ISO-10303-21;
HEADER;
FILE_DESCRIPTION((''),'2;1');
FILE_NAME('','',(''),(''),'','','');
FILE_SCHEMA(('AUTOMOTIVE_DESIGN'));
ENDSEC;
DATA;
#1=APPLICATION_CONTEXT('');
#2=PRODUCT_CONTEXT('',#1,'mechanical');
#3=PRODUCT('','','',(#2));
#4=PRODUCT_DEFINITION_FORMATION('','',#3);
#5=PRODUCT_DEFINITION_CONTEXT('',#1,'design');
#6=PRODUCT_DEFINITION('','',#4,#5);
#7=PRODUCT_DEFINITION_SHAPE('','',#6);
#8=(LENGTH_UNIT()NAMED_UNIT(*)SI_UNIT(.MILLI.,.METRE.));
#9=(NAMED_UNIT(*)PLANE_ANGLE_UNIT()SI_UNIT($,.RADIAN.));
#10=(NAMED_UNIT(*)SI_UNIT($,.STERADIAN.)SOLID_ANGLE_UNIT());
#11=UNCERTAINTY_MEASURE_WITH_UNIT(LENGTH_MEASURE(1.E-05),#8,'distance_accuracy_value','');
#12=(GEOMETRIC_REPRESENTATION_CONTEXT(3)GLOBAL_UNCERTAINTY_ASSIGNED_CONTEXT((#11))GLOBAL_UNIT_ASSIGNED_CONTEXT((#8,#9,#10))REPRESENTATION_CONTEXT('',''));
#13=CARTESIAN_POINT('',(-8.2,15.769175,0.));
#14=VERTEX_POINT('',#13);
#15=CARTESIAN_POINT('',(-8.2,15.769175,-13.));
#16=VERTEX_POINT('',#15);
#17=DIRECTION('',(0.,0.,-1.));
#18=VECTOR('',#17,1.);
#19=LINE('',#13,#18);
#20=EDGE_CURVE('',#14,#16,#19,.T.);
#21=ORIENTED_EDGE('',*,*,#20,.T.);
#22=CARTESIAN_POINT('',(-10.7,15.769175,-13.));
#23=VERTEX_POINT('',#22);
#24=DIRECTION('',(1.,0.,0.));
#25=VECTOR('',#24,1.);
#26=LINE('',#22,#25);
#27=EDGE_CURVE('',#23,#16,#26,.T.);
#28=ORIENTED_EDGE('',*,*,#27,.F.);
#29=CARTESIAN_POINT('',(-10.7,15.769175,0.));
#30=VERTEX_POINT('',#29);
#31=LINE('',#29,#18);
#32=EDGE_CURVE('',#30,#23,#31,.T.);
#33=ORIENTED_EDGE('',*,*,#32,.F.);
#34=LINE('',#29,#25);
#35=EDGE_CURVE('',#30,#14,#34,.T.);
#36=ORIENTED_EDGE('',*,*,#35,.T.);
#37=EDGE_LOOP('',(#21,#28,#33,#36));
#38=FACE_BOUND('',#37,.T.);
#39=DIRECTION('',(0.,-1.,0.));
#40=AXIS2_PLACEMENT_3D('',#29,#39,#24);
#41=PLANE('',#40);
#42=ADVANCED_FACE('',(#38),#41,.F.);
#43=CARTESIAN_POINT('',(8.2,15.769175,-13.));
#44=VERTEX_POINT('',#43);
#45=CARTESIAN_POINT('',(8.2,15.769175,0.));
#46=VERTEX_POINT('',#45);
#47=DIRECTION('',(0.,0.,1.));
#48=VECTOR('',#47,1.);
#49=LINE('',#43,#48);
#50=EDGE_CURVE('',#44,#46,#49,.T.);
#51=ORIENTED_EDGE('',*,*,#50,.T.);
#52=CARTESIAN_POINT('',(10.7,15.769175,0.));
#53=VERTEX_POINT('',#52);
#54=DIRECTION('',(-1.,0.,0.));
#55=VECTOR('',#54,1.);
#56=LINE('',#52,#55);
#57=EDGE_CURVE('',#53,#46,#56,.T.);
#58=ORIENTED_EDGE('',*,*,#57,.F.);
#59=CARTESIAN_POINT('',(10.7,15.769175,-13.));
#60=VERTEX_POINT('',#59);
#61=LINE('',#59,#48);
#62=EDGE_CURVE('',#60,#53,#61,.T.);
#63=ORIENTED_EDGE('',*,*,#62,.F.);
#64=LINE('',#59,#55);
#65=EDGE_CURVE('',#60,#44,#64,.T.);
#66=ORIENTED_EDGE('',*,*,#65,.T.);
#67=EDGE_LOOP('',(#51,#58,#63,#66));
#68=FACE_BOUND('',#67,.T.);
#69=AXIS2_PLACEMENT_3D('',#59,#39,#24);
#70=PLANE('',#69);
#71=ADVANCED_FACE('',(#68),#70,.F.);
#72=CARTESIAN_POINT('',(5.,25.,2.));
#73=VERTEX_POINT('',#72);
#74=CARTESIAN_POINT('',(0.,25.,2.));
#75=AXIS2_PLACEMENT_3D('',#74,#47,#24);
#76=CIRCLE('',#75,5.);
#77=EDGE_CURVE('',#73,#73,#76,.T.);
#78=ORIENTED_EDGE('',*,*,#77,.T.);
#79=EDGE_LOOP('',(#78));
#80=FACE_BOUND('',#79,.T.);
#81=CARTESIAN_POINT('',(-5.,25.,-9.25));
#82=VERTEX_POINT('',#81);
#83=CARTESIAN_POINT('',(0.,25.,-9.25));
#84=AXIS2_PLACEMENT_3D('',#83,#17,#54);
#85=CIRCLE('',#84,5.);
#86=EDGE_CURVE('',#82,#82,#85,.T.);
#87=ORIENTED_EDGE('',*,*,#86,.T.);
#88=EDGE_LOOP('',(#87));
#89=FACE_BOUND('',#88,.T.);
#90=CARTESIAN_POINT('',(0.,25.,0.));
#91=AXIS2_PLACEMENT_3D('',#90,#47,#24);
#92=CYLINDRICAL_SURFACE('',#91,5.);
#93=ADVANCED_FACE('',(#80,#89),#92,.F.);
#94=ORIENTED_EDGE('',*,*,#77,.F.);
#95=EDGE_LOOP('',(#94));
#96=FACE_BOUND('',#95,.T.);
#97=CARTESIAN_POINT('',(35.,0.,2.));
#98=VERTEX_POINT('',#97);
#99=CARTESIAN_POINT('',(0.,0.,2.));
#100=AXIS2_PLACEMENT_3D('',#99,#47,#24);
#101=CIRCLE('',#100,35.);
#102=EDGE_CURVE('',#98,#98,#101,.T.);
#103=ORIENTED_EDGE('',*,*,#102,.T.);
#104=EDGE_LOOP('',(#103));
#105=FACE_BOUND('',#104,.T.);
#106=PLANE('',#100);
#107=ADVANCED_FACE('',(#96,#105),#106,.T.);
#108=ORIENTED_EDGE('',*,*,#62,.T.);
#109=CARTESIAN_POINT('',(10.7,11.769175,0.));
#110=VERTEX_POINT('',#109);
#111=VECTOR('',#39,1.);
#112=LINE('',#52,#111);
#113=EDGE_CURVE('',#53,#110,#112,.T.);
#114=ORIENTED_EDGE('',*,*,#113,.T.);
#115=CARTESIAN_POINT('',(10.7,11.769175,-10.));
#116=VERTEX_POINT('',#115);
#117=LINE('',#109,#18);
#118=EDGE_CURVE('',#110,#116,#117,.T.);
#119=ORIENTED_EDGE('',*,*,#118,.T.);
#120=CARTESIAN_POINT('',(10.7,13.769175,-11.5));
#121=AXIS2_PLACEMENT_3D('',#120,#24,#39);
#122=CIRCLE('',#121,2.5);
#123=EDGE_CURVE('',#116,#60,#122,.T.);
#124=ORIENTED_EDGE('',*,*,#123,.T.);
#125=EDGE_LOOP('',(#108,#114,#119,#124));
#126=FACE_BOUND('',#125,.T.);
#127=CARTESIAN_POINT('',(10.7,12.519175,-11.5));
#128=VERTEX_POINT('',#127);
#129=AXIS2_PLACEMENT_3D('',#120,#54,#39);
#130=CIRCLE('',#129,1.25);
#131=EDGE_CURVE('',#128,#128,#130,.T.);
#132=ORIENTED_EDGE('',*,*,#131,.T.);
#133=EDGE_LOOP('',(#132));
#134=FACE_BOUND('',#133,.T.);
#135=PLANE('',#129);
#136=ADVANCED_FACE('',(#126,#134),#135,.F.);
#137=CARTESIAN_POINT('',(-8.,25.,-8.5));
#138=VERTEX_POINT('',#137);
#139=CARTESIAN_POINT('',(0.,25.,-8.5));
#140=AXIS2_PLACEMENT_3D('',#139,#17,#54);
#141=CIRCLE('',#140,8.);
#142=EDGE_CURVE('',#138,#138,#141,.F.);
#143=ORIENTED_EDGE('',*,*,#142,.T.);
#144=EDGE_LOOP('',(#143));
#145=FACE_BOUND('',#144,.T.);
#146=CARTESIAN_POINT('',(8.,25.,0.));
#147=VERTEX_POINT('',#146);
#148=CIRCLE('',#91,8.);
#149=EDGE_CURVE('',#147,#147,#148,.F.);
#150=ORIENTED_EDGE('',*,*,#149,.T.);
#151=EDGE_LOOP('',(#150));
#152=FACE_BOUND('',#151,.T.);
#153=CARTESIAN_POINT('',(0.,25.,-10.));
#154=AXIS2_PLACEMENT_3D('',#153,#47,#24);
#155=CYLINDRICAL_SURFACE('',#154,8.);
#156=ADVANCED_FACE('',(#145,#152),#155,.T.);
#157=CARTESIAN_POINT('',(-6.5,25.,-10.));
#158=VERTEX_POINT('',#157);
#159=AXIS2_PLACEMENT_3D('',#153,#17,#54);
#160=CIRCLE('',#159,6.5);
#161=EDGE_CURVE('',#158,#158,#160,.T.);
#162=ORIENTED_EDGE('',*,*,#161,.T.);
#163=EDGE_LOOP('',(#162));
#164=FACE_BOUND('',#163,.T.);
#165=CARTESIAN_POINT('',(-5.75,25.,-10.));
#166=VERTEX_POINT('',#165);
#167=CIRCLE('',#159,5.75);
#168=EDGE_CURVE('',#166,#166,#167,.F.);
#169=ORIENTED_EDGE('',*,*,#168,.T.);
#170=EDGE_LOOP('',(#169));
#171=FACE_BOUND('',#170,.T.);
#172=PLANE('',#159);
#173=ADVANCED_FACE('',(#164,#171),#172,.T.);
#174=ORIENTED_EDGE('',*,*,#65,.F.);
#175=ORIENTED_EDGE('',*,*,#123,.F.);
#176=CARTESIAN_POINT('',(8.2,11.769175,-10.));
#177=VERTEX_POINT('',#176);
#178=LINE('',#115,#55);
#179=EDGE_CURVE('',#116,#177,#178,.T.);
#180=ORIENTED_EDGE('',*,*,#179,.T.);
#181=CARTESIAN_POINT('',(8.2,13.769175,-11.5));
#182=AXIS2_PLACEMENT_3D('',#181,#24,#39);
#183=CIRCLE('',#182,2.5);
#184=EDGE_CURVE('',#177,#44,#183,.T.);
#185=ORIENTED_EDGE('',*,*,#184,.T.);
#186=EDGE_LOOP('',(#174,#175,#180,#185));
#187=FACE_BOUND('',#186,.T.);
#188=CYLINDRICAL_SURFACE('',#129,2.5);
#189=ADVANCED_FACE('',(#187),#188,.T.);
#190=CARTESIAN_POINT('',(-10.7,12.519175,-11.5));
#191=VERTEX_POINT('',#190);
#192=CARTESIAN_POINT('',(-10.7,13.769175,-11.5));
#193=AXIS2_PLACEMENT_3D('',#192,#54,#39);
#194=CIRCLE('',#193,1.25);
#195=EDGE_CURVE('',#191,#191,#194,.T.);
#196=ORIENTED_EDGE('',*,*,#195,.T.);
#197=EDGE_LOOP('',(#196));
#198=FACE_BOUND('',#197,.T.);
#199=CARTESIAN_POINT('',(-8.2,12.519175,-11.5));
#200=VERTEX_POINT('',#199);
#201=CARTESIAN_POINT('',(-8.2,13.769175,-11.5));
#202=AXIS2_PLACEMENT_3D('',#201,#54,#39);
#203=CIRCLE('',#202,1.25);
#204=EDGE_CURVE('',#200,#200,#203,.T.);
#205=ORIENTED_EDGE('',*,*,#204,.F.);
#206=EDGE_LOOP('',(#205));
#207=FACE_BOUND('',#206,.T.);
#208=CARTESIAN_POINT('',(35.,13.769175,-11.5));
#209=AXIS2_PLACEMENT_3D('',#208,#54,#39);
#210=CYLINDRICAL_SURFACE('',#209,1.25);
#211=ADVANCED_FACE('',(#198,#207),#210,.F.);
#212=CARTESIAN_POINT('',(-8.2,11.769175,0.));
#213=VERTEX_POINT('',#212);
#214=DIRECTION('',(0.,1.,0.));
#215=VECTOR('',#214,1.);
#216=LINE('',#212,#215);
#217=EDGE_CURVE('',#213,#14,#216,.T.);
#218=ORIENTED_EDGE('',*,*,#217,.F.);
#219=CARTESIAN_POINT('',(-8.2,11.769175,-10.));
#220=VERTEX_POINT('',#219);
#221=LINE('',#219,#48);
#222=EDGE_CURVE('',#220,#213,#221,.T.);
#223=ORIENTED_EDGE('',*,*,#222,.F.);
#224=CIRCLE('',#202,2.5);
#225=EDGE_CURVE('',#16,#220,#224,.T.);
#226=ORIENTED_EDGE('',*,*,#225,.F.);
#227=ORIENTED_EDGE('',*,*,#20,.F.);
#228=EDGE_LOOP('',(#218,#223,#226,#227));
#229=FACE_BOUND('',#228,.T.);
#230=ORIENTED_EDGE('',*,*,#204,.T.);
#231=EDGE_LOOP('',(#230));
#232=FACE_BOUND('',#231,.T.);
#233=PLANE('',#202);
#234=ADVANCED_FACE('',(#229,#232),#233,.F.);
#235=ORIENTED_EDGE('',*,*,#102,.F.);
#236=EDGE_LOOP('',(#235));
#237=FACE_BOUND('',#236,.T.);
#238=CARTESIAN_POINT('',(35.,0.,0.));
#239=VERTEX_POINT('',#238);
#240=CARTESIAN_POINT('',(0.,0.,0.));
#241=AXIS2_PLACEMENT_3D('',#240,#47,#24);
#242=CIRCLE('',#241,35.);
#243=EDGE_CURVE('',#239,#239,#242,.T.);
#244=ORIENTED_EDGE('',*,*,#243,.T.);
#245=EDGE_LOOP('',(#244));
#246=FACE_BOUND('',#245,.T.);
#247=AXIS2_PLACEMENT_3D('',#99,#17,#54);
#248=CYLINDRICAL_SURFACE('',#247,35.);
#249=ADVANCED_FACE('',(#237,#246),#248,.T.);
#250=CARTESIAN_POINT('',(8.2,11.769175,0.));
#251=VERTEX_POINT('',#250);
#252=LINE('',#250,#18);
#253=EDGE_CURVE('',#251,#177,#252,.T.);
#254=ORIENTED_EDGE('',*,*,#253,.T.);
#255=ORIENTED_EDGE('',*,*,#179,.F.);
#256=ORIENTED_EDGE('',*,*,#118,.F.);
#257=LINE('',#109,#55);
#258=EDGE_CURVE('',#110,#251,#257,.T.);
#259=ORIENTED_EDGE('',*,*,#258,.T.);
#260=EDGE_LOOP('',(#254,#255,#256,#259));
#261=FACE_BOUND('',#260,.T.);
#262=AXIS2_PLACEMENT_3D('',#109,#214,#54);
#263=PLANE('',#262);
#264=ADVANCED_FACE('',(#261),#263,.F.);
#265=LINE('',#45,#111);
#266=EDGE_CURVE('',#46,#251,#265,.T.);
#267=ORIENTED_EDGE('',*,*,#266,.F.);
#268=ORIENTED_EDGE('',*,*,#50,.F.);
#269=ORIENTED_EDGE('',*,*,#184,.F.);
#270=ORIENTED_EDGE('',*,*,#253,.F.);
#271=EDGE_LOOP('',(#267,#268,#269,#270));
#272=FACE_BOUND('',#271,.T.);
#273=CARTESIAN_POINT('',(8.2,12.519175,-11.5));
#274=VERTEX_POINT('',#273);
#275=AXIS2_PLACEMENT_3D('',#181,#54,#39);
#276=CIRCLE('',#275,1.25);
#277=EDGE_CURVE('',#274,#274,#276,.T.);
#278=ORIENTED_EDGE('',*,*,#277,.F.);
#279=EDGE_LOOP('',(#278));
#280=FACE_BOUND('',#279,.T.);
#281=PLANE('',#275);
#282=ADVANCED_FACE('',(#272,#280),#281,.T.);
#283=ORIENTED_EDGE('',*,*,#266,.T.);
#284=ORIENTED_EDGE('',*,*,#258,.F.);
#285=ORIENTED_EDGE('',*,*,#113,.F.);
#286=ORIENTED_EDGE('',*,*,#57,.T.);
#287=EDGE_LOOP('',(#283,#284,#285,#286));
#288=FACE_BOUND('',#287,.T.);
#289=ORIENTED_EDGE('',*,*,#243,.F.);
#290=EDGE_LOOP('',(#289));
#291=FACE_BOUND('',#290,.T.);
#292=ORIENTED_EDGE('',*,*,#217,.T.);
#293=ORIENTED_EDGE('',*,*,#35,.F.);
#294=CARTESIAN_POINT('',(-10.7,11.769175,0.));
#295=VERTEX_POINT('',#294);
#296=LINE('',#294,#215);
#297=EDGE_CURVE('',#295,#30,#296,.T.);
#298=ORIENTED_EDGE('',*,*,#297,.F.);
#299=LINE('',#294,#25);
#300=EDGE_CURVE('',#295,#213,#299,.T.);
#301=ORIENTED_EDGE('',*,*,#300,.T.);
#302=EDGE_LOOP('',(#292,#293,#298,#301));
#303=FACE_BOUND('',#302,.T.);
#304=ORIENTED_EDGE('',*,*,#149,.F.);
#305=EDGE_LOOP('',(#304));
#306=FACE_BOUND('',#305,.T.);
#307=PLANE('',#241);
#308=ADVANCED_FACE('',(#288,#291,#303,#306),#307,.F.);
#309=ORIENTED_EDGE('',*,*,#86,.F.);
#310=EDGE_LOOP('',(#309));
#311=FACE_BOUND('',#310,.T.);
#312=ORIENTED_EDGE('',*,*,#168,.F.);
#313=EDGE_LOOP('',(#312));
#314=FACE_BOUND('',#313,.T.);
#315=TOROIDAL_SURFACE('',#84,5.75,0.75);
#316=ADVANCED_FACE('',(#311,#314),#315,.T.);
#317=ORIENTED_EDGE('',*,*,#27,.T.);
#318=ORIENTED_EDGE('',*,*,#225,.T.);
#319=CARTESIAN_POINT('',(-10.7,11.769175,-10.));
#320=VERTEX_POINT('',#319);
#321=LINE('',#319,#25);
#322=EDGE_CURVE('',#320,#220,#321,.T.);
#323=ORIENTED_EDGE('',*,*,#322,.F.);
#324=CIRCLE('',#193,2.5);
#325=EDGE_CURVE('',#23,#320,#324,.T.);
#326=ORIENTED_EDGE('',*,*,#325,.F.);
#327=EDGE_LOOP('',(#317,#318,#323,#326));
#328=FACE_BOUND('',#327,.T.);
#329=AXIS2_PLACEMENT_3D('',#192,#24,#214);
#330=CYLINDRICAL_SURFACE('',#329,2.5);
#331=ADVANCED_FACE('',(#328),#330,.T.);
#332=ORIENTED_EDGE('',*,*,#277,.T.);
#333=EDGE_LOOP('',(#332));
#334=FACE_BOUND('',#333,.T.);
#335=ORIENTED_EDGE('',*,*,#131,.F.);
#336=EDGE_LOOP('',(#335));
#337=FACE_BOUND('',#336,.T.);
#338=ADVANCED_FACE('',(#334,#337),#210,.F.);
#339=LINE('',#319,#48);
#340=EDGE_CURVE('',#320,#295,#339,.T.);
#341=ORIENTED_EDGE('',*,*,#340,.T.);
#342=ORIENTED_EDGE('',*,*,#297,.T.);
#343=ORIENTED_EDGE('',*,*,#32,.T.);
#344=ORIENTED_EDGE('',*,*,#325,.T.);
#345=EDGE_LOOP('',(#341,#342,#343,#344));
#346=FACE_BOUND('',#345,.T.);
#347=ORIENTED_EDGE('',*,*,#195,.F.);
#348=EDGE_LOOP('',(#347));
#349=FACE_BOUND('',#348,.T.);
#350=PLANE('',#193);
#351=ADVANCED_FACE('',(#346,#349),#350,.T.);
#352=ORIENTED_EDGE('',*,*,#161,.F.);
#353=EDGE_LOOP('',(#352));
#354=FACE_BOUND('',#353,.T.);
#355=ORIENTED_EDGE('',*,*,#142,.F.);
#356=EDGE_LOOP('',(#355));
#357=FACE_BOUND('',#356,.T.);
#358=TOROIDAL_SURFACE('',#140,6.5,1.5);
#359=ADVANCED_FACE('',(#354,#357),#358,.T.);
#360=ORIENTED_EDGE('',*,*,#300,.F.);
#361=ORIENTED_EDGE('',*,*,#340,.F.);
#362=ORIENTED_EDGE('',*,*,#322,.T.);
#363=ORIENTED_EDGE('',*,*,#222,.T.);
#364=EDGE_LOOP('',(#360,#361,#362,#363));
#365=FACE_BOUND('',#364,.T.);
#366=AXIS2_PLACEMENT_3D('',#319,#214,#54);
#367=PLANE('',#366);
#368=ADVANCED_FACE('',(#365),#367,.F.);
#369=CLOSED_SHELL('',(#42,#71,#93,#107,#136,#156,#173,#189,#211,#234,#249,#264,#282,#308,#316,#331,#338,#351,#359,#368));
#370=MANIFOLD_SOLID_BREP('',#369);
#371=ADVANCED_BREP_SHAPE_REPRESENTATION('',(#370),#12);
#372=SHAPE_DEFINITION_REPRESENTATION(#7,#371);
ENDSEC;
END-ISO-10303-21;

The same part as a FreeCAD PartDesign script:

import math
import FreeCAD as App
import Part
import Sketcher


def edges_at(feature, points):
    """Names of the edges that pass closest to the given points."""
    edges = feature.Shape.Edges
    near = lambda p: min(range(len(edges)), key=lambda i: edges[i].distToShape(Part.Vertex(*p))[0])
    return sorted({f"Edge{near(p) + 1}" for p in points})

doc = App.newDocument("Part")
body = doc.addObject("PartDesign::Body", "Body")

sketch1 = body.newObject("Sketcher::SketchObject", "Sketch")
sketch1.AttachmentSupport = (doc.getObject("XY_Plane"), [""])
sketch1.MapMode = "FlatFace"
sketch1.addGeometry(Part.Circle(App.Vector(0, 0, 0), App.Vector(0, 0, 1), 35), False)
sketch1.addConstraint([
    Sketcher.Constraint("Coincident", 0, 3, -1, 1),
    Sketcher.Constraint("Diameter", 0, 70.0),
])
pad1 = body.newObject("PartDesign::Pad", "Pad")
pad1.Profile = sketch1
pad1.Length = 2

sketch2 = body.newObject("Sketcher::SketchObject", "Sketch001")
sketch2.AttachmentSupport = (doc.getObject("XY_Plane"), [""])
sketch2.MapMode = "FlatFace"
sketch2.AttachmentOffset = App.Placement(App.Vector(0, 0, 2), App.Rotation())
sketch2.addGeometry(Part.Circle(App.Vector(0, 25, 0), App.Vector(0, 0, 1), 5), False)
sketch2.addConstraint([
    Sketcher.Constraint("PointOnObject", 0, 3, -2),
    Sketcher.Constraint("Diameter", 0, 10.0),
    Sketcher.Constraint("DistanceY", -1, 1, 0, 3, 25.0),
])
pocket1 = body.newObject("PartDesign::Pocket", "Pocket")
pocket1.Profile = sketch2
pocket1.Length = 2

sketch3 = body.newObject("Sketcher::SketchObject", "Sketch002")
sketch3.AttachmentSupport = (doc.getObject("XY_Plane"), [""])
sketch3.MapMode = "FlatFace"
sketch3.addGeometry([
    Part.Circle(App.Vector(0, 25, 0), App.Vector(0, 0, 1), 8),
    Part.Circle(App.Vector(0, 25, 0), App.Vector(0, 0, 1), 5),
], False)
sketch3.addConstraint([
    Sketcher.Constraint("Coincident", 1, 3, 0, 3),
    Sketcher.Constraint("PointOnObject", 0, 3, -2),
    Sketcher.Constraint("Diameter", 0, 16.0),
    Sketcher.Constraint("Diameter", 1, 10.0),
    Sketcher.Constraint("DistanceY", -1, 1, 0, 3, 25.0),
])
pad2 = body.newObject("PartDesign::Pad", "Pad001")
pad2.Profile = sketch3
pad2.Length = 10
pad2.Reversed = True
doc.recompute()

fillet = body.newObject("PartDesign::Fillet", "Fillet")
fillet.Base = (pad2, edges_at(pad2, [(-5, 25, -10)]))
fillet.Radius = 0.75
doc.recompute()

fillet2 = body.newObject("PartDesign::Fillet", "Fillet001")
fillet2.Base = (fillet, edges_at(fillet, [(-8, 25, -10)]))
fillet2.Radius = 1.5

sketch4 = body.newObject("Sketcher::SketchObject", "Sketch003")
sketch4.AttachmentSupport = (doc.getObject("YZ_Plane"), [""])
sketch4.MapMode = "FlatFace"
sketch4.AttachmentOffset = App.Placement(App.Vector(0, 0, 8.2), App.Rotation())
sketch4.addGeometry([
    Part.LineSegment(App.Vector(15.8, -13, 0), App.Vector(15.8, 0, 0)),
    Part.LineSegment(App.Vector(15.8, 0, 0), App.Vector(11.8, 0, 0)),
    Part.LineSegment(App.Vector(11.8, 0, 0), App.Vector(11.8, -10, 0)),
    Part.ArcOfCircle(Part.Circle(App.Vector(13.8, -11.5, 0), App.Vector(0, 0, 1), 2.5), math.radians(143), math.radians(323)),
], False)
sketch4.addConstraint([
    Sketcher.Constraint("Coincident", 0, 2, 1, 1),
    Sketcher.Constraint("Coincident", 1, 2, 2, 1),
    Sketcher.Constraint("Coincident", 2, 2, 3, 1),
    Sketcher.Constraint("Coincident", 3, 2, 0, 1),
    Sketcher.Constraint("Vertical", 0),
    Sketcher.Constraint("Horizontal", 1),
    Sketcher.Constraint("Vertical", 2),
    Sketcher.Constraint("PointOnObject", 0, 2, -1),
    Sketcher.Constraint("Radius", 3, 2.5),
    Sketcher.Constraint("DistanceX", 1, 2, 1, 1, 4.0),
    Sketcher.Constraint("DistanceY", 0, 1, 0, 2, 13.0),
    Sketcher.Constraint("DistanceX", 3, 3, 0, 2, 2.0),
    Sketcher.Constraint("DistanceX", -1, 1, 3, 3, 13.769175),
])
pad3 = body.newObject("PartDesign::Pad", "Pad002")
pad3.Profile = sketch4
pad3.Length = 2.5

sketch5 = body.newObject("Sketcher::SketchObject", "Sketch004")
sketch5.AttachmentSupport = (doc.getObject("YZ_Plane"), [""])
sketch5.MapMode = "FlatFace"
sketch5.AttachmentOffset = App.Placement(App.Vector(0, 0, -10.7), App.Rotation())
sketch5.addGeometry([
    Part.LineSegment(App.Vector(11.8, -10, 0), App.Vector(11.8, 0, 0)),
    Part.LineSegment(App.Vector(11.8, 0, 0), App.Vector(15.8, 0, 0)),
    Part.LineSegment(App.Vector(15.8, 0, 0), App.Vector(15.8, -13, 0)),
    Part.ArcOfCircle(Part.Circle(App.Vector(13.8, -11.5, 0), App.Vector(0, 0, 1), 2.5), math.radians(143), math.radians(323)),
], False)
sketch5.addConstraint([
    Sketcher.Constraint("Coincident", 0, 2, 1, 1),
    Sketcher.Constraint("Coincident", 1, 2, 2, 1),
    Sketcher.Constraint("Coincident", 2, 2, 3, 2),
    Sketcher.Constraint("Coincident", 3, 1, 0, 1),
    Sketcher.Constraint("Vertical", 0),
    Sketcher.Constraint("Horizontal", 1),
    Sketcher.Constraint("Vertical", 2),
    Sketcher.Constraint("PointOnObject", 0, 2, -1),
    Sketcher.Constraint("Radius", 3, 2.5),
    Sketcher.Constraint("DistanceX", 1, 1, 1, 2, 4.0),
    Sketcher.Constraint("DistanceY", 0, 1, 0, 2, 10.0),
    Sketcher.Constraint("DistanceX", 0, 2, 3, 3, 2.0),
    Sketcher.Constraint("DistanceX", -1, 1, 3, 3, 13.769175),
])
pad4 = body.newObject("PartDesign::Pad", "Pad003")
pad4.Profile = sketch5
pad4.Length = 2.5

sketch6 = body.newObject("Sketcher::SketchObject", "Sketch005")
sketch6.AttachmentSupport = (doc.getObject("YZ_Plane"), [""])
sketch6.MapMode = "FlatFace"
sketch6.AttachmentOffset = App.Placement(App.Vector(0, 0, -10.7), App.Rotation())
sketch6.addGeometry(Part.Circle(App.Vector(13.8, -11.5, 0), App.Vector(0, 0, 1), 1.2), False)
sketch6.addConstraint([
    Sketcher.Constraint("Diameter", 0, 2.5),
    Sketcher.Constraint("DistanceY", 0, 3, -1, 1, 11.5),
    Sketcher.Constraint("DistanceX", -1, 1, 0, 3, 13.769175),
])
pocket2 = body.newObject("PartDesign::Pocket", "Pocket001")
pocket2.Profile = sketch6
pocket2.Type = "ThroughAll"
pocket2.Reversed = True

doc.recompute()
